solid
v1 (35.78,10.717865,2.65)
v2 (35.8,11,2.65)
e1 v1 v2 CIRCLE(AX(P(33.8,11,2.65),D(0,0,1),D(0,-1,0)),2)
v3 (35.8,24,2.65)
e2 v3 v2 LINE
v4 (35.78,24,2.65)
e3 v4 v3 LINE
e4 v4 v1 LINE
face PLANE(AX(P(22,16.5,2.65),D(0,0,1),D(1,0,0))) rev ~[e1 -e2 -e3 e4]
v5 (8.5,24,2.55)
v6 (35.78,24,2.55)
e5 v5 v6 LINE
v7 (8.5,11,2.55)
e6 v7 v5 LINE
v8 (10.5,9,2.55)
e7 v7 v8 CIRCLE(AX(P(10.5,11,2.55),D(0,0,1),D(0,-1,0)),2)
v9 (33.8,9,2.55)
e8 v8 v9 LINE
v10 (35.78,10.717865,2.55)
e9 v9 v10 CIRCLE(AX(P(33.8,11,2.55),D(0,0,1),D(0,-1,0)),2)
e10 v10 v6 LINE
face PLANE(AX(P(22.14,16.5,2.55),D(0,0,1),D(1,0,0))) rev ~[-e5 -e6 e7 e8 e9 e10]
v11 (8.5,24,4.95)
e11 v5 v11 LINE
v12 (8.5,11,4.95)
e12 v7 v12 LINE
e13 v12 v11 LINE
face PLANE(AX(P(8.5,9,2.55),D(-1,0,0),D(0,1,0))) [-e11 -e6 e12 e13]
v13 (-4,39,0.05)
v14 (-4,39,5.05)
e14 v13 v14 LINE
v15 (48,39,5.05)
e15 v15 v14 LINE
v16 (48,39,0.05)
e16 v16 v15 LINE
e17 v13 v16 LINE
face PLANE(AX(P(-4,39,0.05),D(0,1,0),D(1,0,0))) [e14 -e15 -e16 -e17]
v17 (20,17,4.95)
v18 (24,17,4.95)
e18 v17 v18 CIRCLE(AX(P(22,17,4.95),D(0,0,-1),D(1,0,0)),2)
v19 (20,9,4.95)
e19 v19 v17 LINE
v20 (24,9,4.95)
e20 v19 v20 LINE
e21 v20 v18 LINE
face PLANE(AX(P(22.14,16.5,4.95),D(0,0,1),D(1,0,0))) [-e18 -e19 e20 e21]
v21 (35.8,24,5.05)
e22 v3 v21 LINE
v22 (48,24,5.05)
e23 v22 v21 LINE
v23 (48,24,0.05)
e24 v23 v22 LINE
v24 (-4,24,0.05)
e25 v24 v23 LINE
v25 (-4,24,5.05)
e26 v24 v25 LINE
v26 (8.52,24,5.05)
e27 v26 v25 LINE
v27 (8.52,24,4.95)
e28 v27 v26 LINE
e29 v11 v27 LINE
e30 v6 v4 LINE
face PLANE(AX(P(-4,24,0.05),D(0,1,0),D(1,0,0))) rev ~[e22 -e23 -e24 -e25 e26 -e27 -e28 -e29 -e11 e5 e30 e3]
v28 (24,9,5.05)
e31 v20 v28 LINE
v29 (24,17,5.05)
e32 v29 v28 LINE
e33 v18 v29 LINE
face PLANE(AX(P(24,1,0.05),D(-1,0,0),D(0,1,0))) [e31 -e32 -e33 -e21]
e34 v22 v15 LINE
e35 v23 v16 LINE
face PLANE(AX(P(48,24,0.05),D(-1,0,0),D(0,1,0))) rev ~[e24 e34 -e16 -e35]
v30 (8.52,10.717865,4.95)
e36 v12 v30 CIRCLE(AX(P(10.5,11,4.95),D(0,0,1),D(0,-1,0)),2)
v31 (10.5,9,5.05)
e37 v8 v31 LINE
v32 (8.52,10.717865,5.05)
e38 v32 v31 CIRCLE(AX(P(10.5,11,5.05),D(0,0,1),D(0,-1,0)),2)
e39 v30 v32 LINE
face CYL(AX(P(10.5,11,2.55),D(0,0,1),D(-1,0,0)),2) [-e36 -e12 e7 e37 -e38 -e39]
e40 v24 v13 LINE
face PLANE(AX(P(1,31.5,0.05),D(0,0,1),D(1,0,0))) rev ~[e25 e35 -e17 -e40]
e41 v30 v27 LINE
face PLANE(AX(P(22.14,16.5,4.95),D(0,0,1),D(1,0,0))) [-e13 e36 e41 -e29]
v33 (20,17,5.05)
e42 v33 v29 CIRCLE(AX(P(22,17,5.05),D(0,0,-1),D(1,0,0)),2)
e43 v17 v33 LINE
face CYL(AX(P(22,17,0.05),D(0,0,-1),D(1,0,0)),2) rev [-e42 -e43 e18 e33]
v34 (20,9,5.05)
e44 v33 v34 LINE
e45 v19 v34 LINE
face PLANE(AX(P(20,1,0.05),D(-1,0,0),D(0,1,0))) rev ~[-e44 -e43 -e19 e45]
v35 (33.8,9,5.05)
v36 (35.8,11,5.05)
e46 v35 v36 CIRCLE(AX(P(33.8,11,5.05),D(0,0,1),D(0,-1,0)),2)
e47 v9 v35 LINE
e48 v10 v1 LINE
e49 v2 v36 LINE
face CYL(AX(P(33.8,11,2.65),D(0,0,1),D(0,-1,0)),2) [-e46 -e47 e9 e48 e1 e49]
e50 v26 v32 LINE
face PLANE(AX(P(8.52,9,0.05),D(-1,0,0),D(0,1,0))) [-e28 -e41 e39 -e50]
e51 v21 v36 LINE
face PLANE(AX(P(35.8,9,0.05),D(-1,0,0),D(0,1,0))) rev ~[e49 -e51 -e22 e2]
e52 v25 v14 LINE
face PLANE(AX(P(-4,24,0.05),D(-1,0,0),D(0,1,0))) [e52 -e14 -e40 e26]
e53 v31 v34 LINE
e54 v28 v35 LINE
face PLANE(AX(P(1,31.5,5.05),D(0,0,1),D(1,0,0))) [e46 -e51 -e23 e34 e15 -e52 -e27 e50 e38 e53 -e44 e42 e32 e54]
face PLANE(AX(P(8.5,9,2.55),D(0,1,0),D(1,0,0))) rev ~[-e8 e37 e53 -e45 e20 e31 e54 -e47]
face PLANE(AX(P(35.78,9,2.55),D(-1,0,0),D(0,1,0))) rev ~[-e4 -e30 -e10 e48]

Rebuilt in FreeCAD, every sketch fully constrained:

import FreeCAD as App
import Part
import Sketcher


def edges_at(feature, points):
    """Names of the edges that pass closest to the given points."""
    edges = feature.Shape.Edges
    near = lambda p: min(range(len(edges)), key=lambda i: edges[i].distToShape(Part.Vertex(*p))[0])
    return sorted({f"Edge{near(p) + 1}" for p in points})


def add_polygon(sketch, points):
    """Adds a closed chain of lines whose ends are joined by coincident constraints."""
    first, n = sketch.GeometryCount, len(points)
    for a, b in zip(points, points[1:] + points[:1]):
        sketch.addGeometry(Part.LineSegment(App.Vector(*a, 0), App.Vector(*b, 0)), False)
    for i in range(n):
        sketch.addConstraint(Sketcher.Constraint("Coincident", first + i, 2, first + (i + 1) % n, 1))

doc = App.newDocument("Part")
body = doc.addObject("PartDesign::Body", "Body")

# Sketch on XY plane
sketch1 = body.newObject("Sketcher::SketchObject", "Sketch")
sketch1.AttachmentSupport = (doc.getObject("XY_Plane"), [""])
sketch1.MapMode = "FlatFace"
sketch1.AttachmentOffset = App.Placement(App.Vector(0, 0, 2.5), App.Rotation())
add_polygon(sketch1, [(8, 36), (8, 21), (36, 21), (36, 36)])  # lines 0-3
sketch1.addConstraint([
    Sketcher.Constraint("Vertical", 0),
    Sketcher.Constraint("Horizontal", 1),
    Sketcher.Constraint("Vertical", 2),
    Sketcher.Constraint("Horizontal", 3),
    Sketcher.Constraint("DistanceY", 0, 2, 0, 1, 15.0),
    Sketcher.Constraint("DistanceY", -1, 1, 0, 2, 21.0),
    Sketcher.Constraint("DistanceX", 1, 1, 1, 2, 27.28),
    Sketcher.Constraint("DistanceX", -1, 1, 0, 2, 8.5),
])
pad1 = body.newObject("PartDesign::Pad", "Pad")
pad1.Profile = sketch1
pad1.Length = 2.4
body2 = doc.addObject("PartDesign::Body", "Body001")

# Sketch on XY plane
sketch2 = body2.newObject("Sketcher::SketchObject", "Sketch001")
sketch2.AttachmentSupport = (doc.getObject("XY_Plane001"), [""])
sketch2.MapMode = "FlatFace"
add_polygon(sketch2, [(-4, 51), (-4, 36), (6, 36), (6, 51)])  # lines 0-3
sketch2.addConstraint([
    Sketcher.Constraint("Vertical", 0),
    Sketcher.Constraint("Horizontal", 1),
    Sketcher.Constraint("Vertical", 2),
    Sketcher.Constraint("Horizontal", 3),
    Sketcher.Constraint("DistanceX", 1, 1, 1, 2, 10.0),
    Sketcher.Constraint("DistanceY", 0, 2, 0, 1, 15.0),
    Sketcher.Constraint("DistanceX", 0, 2, -1, 1, 4.0),
    Sketcher.Constraint("DistanceY", -1, 1, 0, 2, 36.0),
])
pad2 = body2.newObject("PartDesign::Pad", "Pad001")
pad2.Profile = sketch2
pad2.Length = 5
body3 = doc.addObject("PartDesign::Body", "Body002")

# Sketch on XY plane
sketch3 = body3.newObject("Sketcher::SketchObject", "Sketch002")
sketch3.AttachmentSupport = (doc.getObject("XY_Plane002"), [""])
sketch3.MapMode = "FlatFace"
add_polygon(sketch3, [(38, 51), (38, 36), (48, 36), (48, 51)])  # lines 0-3
sketch3.addConstraint([
    Sketcher.Constraint("Vertical", 0),
    Sketcher.Constraint("Horizontal", 1),
    Sketcher.Constraint("Vertical", 2),
    Sketcher.Constraint("Horizontal", 3),
    Sketcher.Constraint("DistanceX", 1, 1, 1, 2, 10.0),
    Sketcher.Constraint("DistanceY", 0, 2, 0, 1, 15.0),
    Sketcher.Constraint("DistanceX", -1, 1, 0, 2, 38.0),
    Sketcher.Constraint("DistanceY", -1, 1, 0, 2, 36.0),
])
pad3 = body3.newObject("PartDesign::Pad", "Pad002")
pad3.Profile = sketch3
pad3.Length = 5
body4 = doc.addObject("PartDesign::Body", "Body003")

# Sketch on XY plane
sketch4 = body4.newObject("Sketcher::SketchObject", "Sketch003")
sketch4.AttachmentSupport = (doc.getObject("XY_Plane003"), [""])
sketch4.MapMode = "FlatFace"
add_polygon(sketch4, [(20, 8), (20, -8), (24, -8), (24, 8)])  # lines 0-3
sketch4.addConstraint([
    Sketcher.Constraint("Vertical", 0),
    Sketcher.Constraint("Horizontal", 1),
    Sketcher.Constraint("Vertical", 2),
    Sketcher.Constraint("Horizontal", 3),
    Sketcher.Constraint("DistanceX", 1, 1, 1, 2, 4.0),
    Sketcher.Constraint("DistanceY", 0, 2, 0, 1, 16.0),
    Sketcher.Constraint("DistanceX", -1, 1, 0, 2, 20.0),
    Sketcher.Constraint("DistanceY", 0, 2, -1, 1, 8.0),
])
pad4 = body4.newObject("PartDesign::Pad", "Pad003")
pad4.Profile = sketch4
pad4.Length = 10
body5 = doc.addObject("PartDesign::Body", "Body004")

# Sketch on XY plane
sketch5 = body5.newObject("Sketcher::SketchObject", "Sketch004")
sketch5.AttachmentSupport = (doc.getObject("XY_Plane004"), [""])
sketch5.MapMode = "FlatFace"
sketch5.addGeometry(Part.Circle(App.Vector(22, 8, 0), App.Vector(0, 0, 1), 2), False)
sketch5.addConstraint([
    Sketcher.Constraint("Diameter", 0, 4.0),
    Sketcher.Constraint("DistanceX", -1, 1, 0, 3, 22.0),
    Sketcher.Constraint("DistanceY", -1, 1, 0, 3, 8.0),
])
pad5 = body5.newObject("PartDesign::Pad", "Pad004")
pad5.Profile = sketch5
pad5.Length = 10
doc.recompute()

boolean = body5.newObject("PartDesign::Boolean", "Boolean")
boolean.Type = "Fuse"
boolean.addObjects([body4])
body6 = doc.addObject("PartDesign::Body", "Body005")

# Sketch on XY plane
sketch6 = body6.newObject("Sketcher::SketchObject", "Sketch005")
sketch6.AttachmentSupport = (doc.getObject("XY_Plane005"), [""])
sketch6.MapMode = "FlatFace"
add_polygon(sketch6, [(36, 15), (36, 0), (44, 0), (44, 15)])  # lines 0-3
sketch6.addConstraint([
    Sketcher.Constraint("Vertical", 0),
    Sketcher.Constraint("Horizontal", 1),
    Sketcher.Constraint("Vertical", 2),
    Sketcher.Constraint("Horizontal", 3),
    Sketcher.Constraint("PointOnObject", 0, 2, -1),
    Sketcher.Constraint("DistanceY", 0, 2, 0, 1, 15.0),
    Sketcher.Constraint("DistanceX", 1, 1, 1, 2, 8.2),
    Sketcher.Constraint("DistanceX", -1, 1, 1, 2, 44.0),
])
pad6 = body6.newObject("PartDesign::Pad", "Pad005")
pad6.Profile = sketch6
pad6.Length = 10
body7 = doc.addObject("PartDesign::Body", "Body006")

# Sketch on XY plane
sketch7 = body7.newObject("Sketcher::SketchObject", "Sketch006")
sketch7.AttachmentSupport = (doc.getObject("XY_Plane006"), [""])
sketch7.MapMode = "FlatFace"
add_polygon(sketch7, [(0, 15), (0, 0), (9, 0), (9, 15)])  # lines 0-3
sketch7.addConstraint([
    Sketcher.Constraint("Vertical", 0),
    Sketcher.Constraint("Horizontal", 1),
    Sketcher.Constraint("Vertical", 2),
    Sketcher.Constraint("Horizontal", 3),
    Sketcher.Constraint("Coincident", 0, 2, -1, 1),
    Sketcher.Constraint("DistanceY", 0, 2, 0, 1, 15.0),
    Sketcher.Constraint("DistanceX", 1, 1, 1, 2, 8.52),
])
pad7 = body7.newObject("PartDesign::Pad", "Pad006")
pad7.Profile = sketch7
pad7.Length = 10
body8 = doc.addObject("PartDesign::Body", "Body007")

# Sketch on XY plane
sketch8 = body8.newObject("Sketcher::SketchObject", "Sketch007")
sketch8.AttachmentSupport = (doc.getObject("XY_Plane007"), [""])
sketch8.MapMode = "FlatFace"
add_polygon(sketch8, [(0, 15), (0, 0), (44, 0), (44, 15)])  # lines 0-3
sketch8.addConstraint([
    Sketcher.Constraint("Vertical", 0),
    Sketcher.Constraint("Horizontal", 1),
    Sketcher.Constraint("Vertical", 2),
    Sketcher.Constraint("Horizontal", 3),
    Sketcher.Constraint("Coincident", 0, 2, -1, 1),
    Sketcher.Constraint("DistanceX", 1, 1, 1, 2, 44.0),
    Sketcher.Constraint("DistanceY", 0, 2, 0, 1, 15.0),
])
pad8 = body8.newObject("PartDesign::Pad", "Pad007")
pad8.Profile = sketch8
pad8.Length = 2.6
body9 = doc.addObject("PartDesign::Body", "Body008")

# Sketch on XY plane
sketch9 = body9.newObject("Sketcher::SketchObject", "Sketch008")
sketch9.AttachmentSupport = (doc.getObject("XY_Plane008"), [""])
sketch9.MapMode = "FlatFace"
add_polygon(sketch9, [(0, 30), (0, 0), (44, 0), (44, 30)])  # lines 0-3
sketch9.addConstraint([
    Sketcher.Constraint("Vertical", 0),
    Sketcher.Constraint("Horizontal", 1),
    Sketcher.Constraint("Vertical", 2),
    Sketcher.Constraint("Horizontal", 3),
    Sketcher.Constraint("Coincident", 0, 2, -1, 1),
    Sketcher.Constraint("DistanceX", 1, 1, 1, 2, 44.0),
    Sketcher.Constraint("DistanceY", 0, 2, 0, 1, 30.0),
])
pad9 = body9.newObject("PartDesign::Pad", "Pad008")
pad9.Profile = sketch9
pad9.Length = 5
doc.recompute()

boolean2 = body9.newObject("PartDesign::Boolean", "Boolean001")
boolean2.Type = "Cut"
boolean2.addObjects([body8])
doc.recompute()

boolean3 = body9.newObject("PartDesign::Boolean", "Boolean002")
boolean3.Type = "Cut"
boolean3.addObjects([body7])
doc.recompute()

boolean4 = body9.newObject("PartDesign::Boolean", "Boolean003")
boolean4.Type = "Cut"
boolean4.addObjects([body6])
doc.recompute()

boolean5 = body9.newObject("PartDesign::Boolean", "Boolean004")
boolean5.Type = "Cut"
boolean5.addObjects([body5])
body10 = doc.addObject("PartDesign::Body", "Body009")
doc.recompute()

body9.Placement = App.Placement(App.Vector(0, 21, 0), App.Rotation(App.Vector(0, 0, 1), 0))
boolean6 = body10.newObject("PartDesign::Boolean", "Boolean005")
boolean6.Type = "Fuse"
boolean6.addObjects([body9])
doc.recompute()

boolean7 = body10.newObject("PartDesign::Boolean", "Boolean006")
boolean7.Type = "Fuse"
boolean7.addObjects([body2])
doc.recompute()

boolean8 = body10.newObject("PartDesign::Boolean", "Boolean007")
boolean8.Type = "Fuse"
boolean8.addObjects([body3])
doc.recompute()

boolean9 = body10.newObject("PartDesign::Boolean", "Boolean008")
boolean9.Type = "Fuse"
boolean9.addObjects([body])
doc.recompute()

fillet = body10.newObject("PartDesign::Fillet", "Fillet")
fillet.Base = (boolean9, edges_at(boolean9, [(8.5, 21, 3.7), (35.8, 21, 3.8)]))
fillet.Radius = 2
body11 = doc.addObject("PartDesign::Body", "Body010")
doc.recompute()

body10.Placement = App.Placement(App.Vector(0, -12, 0.05), App.Rotation(App.Vector(0, 0, 1), 0))
boolean10 = body11.newObject("PartDesign::Boolean", "Boolean009")
boolean10.Type = "Fuse"
boolean10.addObjects([body10])

doc.recompute()
